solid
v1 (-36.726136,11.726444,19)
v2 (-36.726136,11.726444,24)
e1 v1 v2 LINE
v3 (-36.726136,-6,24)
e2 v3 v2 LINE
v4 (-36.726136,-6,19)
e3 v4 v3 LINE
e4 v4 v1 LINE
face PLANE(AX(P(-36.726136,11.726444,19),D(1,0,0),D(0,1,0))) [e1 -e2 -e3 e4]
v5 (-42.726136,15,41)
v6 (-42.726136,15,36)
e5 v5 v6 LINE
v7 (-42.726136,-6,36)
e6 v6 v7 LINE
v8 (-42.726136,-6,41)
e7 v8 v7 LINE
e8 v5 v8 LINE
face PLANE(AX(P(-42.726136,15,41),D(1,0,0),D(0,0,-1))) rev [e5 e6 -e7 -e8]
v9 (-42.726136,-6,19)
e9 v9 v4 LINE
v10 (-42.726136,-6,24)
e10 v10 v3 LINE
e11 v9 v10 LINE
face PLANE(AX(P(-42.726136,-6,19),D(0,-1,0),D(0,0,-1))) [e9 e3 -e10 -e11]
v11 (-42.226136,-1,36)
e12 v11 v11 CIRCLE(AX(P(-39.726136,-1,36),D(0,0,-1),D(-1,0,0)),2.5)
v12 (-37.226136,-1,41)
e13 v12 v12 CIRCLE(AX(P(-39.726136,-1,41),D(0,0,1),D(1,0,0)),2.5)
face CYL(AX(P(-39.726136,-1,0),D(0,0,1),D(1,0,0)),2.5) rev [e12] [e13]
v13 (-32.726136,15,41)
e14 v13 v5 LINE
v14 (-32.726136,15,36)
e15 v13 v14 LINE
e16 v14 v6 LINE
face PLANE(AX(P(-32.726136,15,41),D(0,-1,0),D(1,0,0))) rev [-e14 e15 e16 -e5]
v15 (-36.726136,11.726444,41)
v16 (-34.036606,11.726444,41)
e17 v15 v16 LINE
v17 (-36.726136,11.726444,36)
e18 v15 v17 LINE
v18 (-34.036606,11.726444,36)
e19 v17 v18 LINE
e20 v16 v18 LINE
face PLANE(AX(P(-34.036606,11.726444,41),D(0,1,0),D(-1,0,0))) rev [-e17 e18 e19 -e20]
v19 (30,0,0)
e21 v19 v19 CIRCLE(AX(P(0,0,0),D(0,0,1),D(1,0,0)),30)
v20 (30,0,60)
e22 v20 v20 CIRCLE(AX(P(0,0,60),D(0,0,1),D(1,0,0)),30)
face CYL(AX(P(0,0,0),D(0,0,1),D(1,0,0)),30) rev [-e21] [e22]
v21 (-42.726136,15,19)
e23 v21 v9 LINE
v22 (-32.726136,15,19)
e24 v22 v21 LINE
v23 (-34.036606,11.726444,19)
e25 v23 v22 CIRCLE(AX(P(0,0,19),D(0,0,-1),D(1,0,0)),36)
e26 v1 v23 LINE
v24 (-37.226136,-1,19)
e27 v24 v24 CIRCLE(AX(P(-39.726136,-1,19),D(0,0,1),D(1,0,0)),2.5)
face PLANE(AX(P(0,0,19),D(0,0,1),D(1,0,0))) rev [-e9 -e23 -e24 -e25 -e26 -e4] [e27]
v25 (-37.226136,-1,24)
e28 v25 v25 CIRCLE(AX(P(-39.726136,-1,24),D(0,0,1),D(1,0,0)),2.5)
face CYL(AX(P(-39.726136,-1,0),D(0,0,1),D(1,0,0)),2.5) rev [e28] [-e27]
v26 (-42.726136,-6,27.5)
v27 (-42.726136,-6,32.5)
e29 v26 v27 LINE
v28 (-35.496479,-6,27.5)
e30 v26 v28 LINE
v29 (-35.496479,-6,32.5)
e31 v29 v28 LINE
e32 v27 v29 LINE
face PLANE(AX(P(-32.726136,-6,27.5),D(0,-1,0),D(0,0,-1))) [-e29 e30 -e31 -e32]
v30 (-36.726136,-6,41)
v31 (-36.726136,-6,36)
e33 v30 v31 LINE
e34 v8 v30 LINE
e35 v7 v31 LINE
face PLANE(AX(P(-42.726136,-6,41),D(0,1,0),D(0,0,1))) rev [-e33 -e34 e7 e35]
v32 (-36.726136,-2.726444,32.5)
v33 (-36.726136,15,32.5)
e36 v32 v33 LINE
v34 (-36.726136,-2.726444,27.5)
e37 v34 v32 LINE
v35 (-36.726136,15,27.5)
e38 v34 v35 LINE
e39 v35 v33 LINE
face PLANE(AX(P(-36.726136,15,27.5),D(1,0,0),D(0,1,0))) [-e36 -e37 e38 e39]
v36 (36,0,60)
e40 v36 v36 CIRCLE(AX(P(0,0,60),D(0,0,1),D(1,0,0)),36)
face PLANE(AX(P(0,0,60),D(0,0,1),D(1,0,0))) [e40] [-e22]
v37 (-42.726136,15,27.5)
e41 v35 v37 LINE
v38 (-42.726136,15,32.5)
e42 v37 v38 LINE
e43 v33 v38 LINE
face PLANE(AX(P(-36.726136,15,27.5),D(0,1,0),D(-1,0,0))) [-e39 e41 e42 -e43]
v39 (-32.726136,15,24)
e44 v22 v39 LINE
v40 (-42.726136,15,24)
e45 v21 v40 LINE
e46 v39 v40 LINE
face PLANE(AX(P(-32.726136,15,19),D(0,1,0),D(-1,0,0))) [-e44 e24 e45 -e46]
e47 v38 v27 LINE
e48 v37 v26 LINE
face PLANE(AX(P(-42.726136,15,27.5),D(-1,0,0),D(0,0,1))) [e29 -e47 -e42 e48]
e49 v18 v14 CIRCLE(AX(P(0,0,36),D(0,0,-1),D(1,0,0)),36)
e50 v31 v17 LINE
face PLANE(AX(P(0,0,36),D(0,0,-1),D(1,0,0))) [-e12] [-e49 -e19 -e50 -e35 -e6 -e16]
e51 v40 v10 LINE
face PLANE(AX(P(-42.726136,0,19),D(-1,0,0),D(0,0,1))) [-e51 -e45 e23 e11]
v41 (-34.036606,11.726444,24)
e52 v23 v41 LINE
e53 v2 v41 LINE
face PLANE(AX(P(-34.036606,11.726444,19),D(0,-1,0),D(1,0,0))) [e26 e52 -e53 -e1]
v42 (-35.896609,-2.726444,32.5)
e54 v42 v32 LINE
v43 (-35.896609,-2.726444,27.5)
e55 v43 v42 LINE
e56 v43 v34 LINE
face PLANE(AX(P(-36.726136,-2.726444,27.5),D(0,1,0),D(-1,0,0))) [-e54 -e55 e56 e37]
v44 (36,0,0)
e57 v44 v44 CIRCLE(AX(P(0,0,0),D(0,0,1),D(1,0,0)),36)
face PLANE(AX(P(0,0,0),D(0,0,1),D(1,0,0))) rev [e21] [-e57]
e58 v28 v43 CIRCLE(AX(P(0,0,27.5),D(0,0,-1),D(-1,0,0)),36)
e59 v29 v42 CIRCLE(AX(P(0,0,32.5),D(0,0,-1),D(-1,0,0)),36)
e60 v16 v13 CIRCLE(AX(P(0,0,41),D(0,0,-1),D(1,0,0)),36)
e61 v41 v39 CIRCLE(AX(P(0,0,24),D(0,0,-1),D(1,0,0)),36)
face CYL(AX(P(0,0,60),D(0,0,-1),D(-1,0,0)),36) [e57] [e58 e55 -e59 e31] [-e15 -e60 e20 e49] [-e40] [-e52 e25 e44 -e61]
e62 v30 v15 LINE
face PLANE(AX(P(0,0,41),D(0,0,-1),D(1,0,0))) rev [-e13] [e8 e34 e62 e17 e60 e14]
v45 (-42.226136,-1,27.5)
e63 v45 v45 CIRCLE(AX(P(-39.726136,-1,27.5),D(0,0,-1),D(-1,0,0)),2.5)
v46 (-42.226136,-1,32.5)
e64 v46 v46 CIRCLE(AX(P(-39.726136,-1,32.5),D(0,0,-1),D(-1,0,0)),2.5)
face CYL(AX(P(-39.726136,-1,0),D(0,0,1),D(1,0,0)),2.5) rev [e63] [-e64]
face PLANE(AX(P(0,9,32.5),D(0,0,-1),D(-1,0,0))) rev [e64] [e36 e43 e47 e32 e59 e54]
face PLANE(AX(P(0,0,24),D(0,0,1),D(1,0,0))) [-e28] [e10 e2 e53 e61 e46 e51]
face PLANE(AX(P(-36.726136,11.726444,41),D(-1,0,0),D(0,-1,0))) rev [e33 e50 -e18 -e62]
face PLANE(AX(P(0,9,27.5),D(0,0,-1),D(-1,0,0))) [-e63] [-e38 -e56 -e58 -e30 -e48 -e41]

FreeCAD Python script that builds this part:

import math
import FreeCAD as App
import Part
import Sketcher
Q = App.Units.Quantity

doc = App.newDocument("Part")
params = doc.addObject("Spreadsheet::Sheet", "Params")
for row, (alias, value) in enumerate([
    ("sketch1_diameter", "72 mm"),
    ("pad1_length", "60 mm"),
    ("sketch2_diameter", "60 mm"),
    ("pocket1_length", "60 mm"),
    ("sketch3_radius", "35.999999 mm"),
    ("sketch3_width", "10 mm"),
    ("sketch3_width2", "6 mm"),
    ("sketch3_height", "21 mm"),
    ("pad2_length", "5 mm"),
    ("sketch4_radius", "35.999999 mm"),
    ("sketch4_width", "6 mm"),
    ("sketch4_width2", "10 mm"),
    ("sketch4_height", "21 mm"),
    ("pad3_length", "2.5 mm"),
    ("pad3_length2", "2.5 mm"),
    ("sketch5_diameter", "5 mm"),
], start=1):
    params.set(f"A{row}", alias)
    params.set(f"B{row}", "=" + value)
    params.setAlias(f"B{row}", alias)

body = doc.addObject("PartDesign::Body", "Body")

sketch1 = body.newObject("Sketcher::SketchObject", "Sketch")
sketch1.AttachmentSupport = (doc.getObject("XY_Plane"), [""])
sketch1.MapMode = "FlatFace"
sketch1.addGeometry(Part.Circle(App.Vector(0, 0, 0), App.Vector(0, 0, 1), 36), False)
sketch1.addConstraint([
    Sketcher.Constraint("Coincident", 0, 3, -1, 1),
    Sketcher.Constraint("Diameter", 0, Q("72 mm")),
])
sketch1.setExpression("Constraints[1]", "Params.sketch1_diameter")
pad1 = body.newObject("PartDesign::Pad", "Pad")
pad1.Profile = sketch1
pad1.setExpression("Length", "Params.pad1_length")

sketch2 = body.newObject("Sketcher::SketchObject", "Sketch001")
sketch2.AttachmentSupport = (doc.getObject("XY_Plane"), [""])
sketch2.MapMode = "FlatFace"
sketch2.AttachmentOffset = App.Placement(App.Vector(0, 0, 60), App.Rotation())
sketch2.addGeometry(Part.Circle(App.Vector(0, 0, 0), App.Vector(0, 0, 1), 30), False)
sketch2.addConstraint([
    Sketcher.Constraint("Coincident", 0, 3, -1, 1),
    Sketcher.Constraint("Diameter", 0, Q("60 mm")),
])
sketch2.setExpression("Constraints[1]", "Params.sketch2_diameter")
pocket1 = body.newObject("PartDesign::Pocket", "Pocket")
pocket1.Profile = sketch2
pocket1.setExpression("Length", "Params.pocket1_length")

sketch3 = body.newObject("Sketcher::SketchObject", "Sketch002")
sketch3.AttachmentSupport = (doc.getObject("XY_Plane"), [""])
sketch3.MapMode = "FlatFace"
sketch3.AttachmentOffset = App.Placement(App.Vector(0, 0, 19), App.Rotation())
sketch3.addGeometry([
    Part.LineSegment(App.Vector(-32.726136, 15, 0), App.Vector(-42.726136, 15, 0)),
    Part.LineSegment(App.Vector(-42.726136, 15, 0), App.Vector(-42.726136, -6, 0)),
    Part.LineSegment(App.Vector(-42.726136, -6, 0), App.Vector(-36.726136, -6, 0)),
    Part.LineSegment(App.Vector(-36.726136, -6, 0), App.Vector(-36.726136, 11.726444, 0)),
    Part.LineSegment(App.Vector(-36.726136, 11.726444, 0), App.Vector(-34.036606, 11.726444, 0)),
    Part.ArcOfCircle(Part.Circle(App.Vector(0, 0, 0), App.Vector(0, 0, 1), 35.999999), math.radians(155.375682), math.radians(160.989917)),
], False)
sketch3.addConstraint([
    Sketcher.Constraint("Coincident", 0, 2, 1, 1),
    Sketcher.Constraint("Coincident", 1, 2, 2, 1),
    Sketcher.Constraint("Coincident", 2, 2, 3, 1),
    Sketcher.Constraint("Coincident", 3, 2, 4, 1),
    Sketcher.Constraint("Coincident", 4, 2, 5, 2),
    Sketcher.Constraint("Coincident", 5, 1, 0, 1),
    Sketcher.Constraint("Horizontal", 0),
    Sketcher.Constraint("Vertical", 1),
    Sketcher.Constraint("Horizontal", 2),
    Sketcher.Constraint("Vertical", 3),
    Sketcher.Constraint("Horizontal", 4),
    Sketcher.Constraint("Coincident", 5, 3, -1, 1),
    Sketcher.Constraint("Radius", 5, Q("35.999999 mm")),
    Sketcher.Constraint("DistanceX", 0, 2, 0, 1, Q("10 mm")),
    Sketcher.Constraint("DistanceX", 2, 1, 2, 2, Q("6 mm")),
    Sketcher.Constraint("DistanceY", 1, 2, 1, 1, Q("21 mm")),
    Sketcher.Constraint("DistanceY", -1, 1, 0, 2, Q("15 mm")),
    Sketcher.Constraint("DistanceX", 4, 1, 4, 2, Q("2.689531 mm")),
])
sketch3.setExpression("Constraints[12]", "Params.sketch3_radius")
sketch3.setExpression("Constraints[13]", "Params.sketch3_width")
sketch3.setExpression("Constraints[14]", "Params.sketch3_width2")
sketch3.setExpression("Constraints[15]", "Params.sketch3_height")
pad2 = body.newObject("PartDesign::Pad", "Pad001")
pad2.Profile = sketch3
pad2.setExpression("Length", "Params.pad2_length")
doc.recompute()

datumplane = body.newObject("PartDesign::Plane", "DatumPlane")
datumplane.AttachmentSupport = (doc.getObject("XY_Plane"), [""])
datumplane.MapMode = "FlatFace"
datumplane.AttachmentOffset = App.Placement(App.Vector(0, 0, 30), App.Rotation())
mirrored = body.newObject("PartDesign::Mirrored", "Mirrored")
mirrored.Originals = [pad2]
mirrored.MirrorPlane = (datumplane, [""])
body.Tip = mirrored

sketch4 = body.newObject("Sketcher::SketchObject", "Sketch003")
sketch4.AttachmentSupport = (doc.getObject("XY_Plane"), [""])
sketch4.MapMode = "FlatFace"
sketch4.AttachmentOffset = App.Placement(App.Vector(0, 0, 30), App.Rotation())
sketch4.addGeometry([
    Part.LineSegment(App.Vector(-36.726136, 15, 0), App.Vector(-42.726136, 15, 0)),
    Part.LineSegment(App.Vector(-42.726136, 15, 0), App.Vector(-42.726136, -6, 0)),
    Part.LineSegment(App.Vector(-42.726136, -6, 0), App.Vector(-32.726136, -6, 0)),
    Part.ArcOfCircle(Part.Circle(App.Vector(0, 9, 0), App.Vector(0, 0, 1), 35.999999), math.radians(-160.989917), math.radians(-155.375682)),
    Part.LineSegment(App.Vector(-34.036606, -2.726444, 0), App.Vector(-36.726136, -2.726444, 0)),
    Part.LineSegment(App.Vector(-36.726136, -2.726444, 0), App.Vector(-36.726136, 15, 0)),
], False)
sketch4.addConstraint([
    Sketcher.Constraint("Coincident", 0, 2, 1, 1),
    Sketcher.Constraint("Coincident", 1, 2, 2, 1),
    Sketcher.Constraint("Coincident", 2, 2, 3, 2),
    Sketcher.Constraint("Coincident", 3, 1, 4, 1),
    Sketcher.Constraint("Coincident", 4, 2, 5, 1),
    Sketcher.Constraint("Coincident", 5, 2, 0, 1),
    Sketcher.Constraint("Horizontal", 0),
    Sketcher.Constraint("Vertical", 1),
    Sketcher.Constraint("Horizontal", 2),
    Sketcher.Constraint("Horizontal", 4),
    Sketcher.Constraint("Vertical", 5),
    Sketcher.Constraint("PointOnObject", 3, 3, -2),
    Sketcher.Constraint("Radius", 3, Q("35.999999 mm")),
    Sketcher.Constraint("DistanceX", 0, 2, 0, 1, Q("6 mm")),
    Sketcher.Constraint("DistanceX", 2, 1, 2, 2, Q("10 mm")),
    Sketcher.Constraint("DistanceY", 1, 2, 1, 1, Q("21 mm")),
    Sketcher.Constraint("DistanceY", -1, 1, 3, 3, Q("9 mm")),
    Sketcher.Constraint("DistanceY", -1, 1, 0, 2, Q("15 mm")),
    Sketcher.Constraint("DistanceX", 4, 2, 4, 1, Q("2.689531 mm")),
])
sketch4.setExpression("Constraints[12]", "Params.sketch4_radius")
sketch4.setExpression("Constraints[13]", "Params.sketch4_width")
sketch4.setExpression("Constraints[14]", "Params.sketch4_width2")
sketch4.setExpression("Constraints[15]", "Params.sketch4_height")
pad3 = body.newObject("PartDesign::Pad", "Pad002")
pad3.Profile = sketch4
pad3.Type = "TwoLengths"
pad3.setExpression("Length", "Params.pad3_length")
pad3.setExpression("Length2", "Params.pad3_length2")

sketch5 = body.newObject("Sketcher::SketchObject", "Sketch004")
sketch5.AttachmentSupport = (doc.getObject("XY_Plane"), [""])
sketch5.MapMode = "FlatFace"
sketch5.AttachmentOffset = App.Placement(App.Vector(0, 0, 41), App.Rotation())
sketch5.addGeometry(Part.Circle(App.Vector(-39.726136, -1, 0), App.Vector(0, 0, 1), 2.5), False)
sketch5.addConstraint([
    Sketcher.Constraint("Diameter", 0, Q("5 mm")),
    Sketcher.Constraint("DistanceY", 0, 3, -1, 1, Q("1 mm")),
    Sketcher.Constraint("DistanceX", 0, 3, -1, 1, Q("39.726136 mm")),
])
sketch5.setExpression("Constraints[0]", "Params.sketch5_diameter")
pocket2 = body.newObject("PartDesign::Pocket", "Pocket001")
pocket2.Profile = sketch5
pocket2.Type = "ThroughAll"

doc.recompute()
